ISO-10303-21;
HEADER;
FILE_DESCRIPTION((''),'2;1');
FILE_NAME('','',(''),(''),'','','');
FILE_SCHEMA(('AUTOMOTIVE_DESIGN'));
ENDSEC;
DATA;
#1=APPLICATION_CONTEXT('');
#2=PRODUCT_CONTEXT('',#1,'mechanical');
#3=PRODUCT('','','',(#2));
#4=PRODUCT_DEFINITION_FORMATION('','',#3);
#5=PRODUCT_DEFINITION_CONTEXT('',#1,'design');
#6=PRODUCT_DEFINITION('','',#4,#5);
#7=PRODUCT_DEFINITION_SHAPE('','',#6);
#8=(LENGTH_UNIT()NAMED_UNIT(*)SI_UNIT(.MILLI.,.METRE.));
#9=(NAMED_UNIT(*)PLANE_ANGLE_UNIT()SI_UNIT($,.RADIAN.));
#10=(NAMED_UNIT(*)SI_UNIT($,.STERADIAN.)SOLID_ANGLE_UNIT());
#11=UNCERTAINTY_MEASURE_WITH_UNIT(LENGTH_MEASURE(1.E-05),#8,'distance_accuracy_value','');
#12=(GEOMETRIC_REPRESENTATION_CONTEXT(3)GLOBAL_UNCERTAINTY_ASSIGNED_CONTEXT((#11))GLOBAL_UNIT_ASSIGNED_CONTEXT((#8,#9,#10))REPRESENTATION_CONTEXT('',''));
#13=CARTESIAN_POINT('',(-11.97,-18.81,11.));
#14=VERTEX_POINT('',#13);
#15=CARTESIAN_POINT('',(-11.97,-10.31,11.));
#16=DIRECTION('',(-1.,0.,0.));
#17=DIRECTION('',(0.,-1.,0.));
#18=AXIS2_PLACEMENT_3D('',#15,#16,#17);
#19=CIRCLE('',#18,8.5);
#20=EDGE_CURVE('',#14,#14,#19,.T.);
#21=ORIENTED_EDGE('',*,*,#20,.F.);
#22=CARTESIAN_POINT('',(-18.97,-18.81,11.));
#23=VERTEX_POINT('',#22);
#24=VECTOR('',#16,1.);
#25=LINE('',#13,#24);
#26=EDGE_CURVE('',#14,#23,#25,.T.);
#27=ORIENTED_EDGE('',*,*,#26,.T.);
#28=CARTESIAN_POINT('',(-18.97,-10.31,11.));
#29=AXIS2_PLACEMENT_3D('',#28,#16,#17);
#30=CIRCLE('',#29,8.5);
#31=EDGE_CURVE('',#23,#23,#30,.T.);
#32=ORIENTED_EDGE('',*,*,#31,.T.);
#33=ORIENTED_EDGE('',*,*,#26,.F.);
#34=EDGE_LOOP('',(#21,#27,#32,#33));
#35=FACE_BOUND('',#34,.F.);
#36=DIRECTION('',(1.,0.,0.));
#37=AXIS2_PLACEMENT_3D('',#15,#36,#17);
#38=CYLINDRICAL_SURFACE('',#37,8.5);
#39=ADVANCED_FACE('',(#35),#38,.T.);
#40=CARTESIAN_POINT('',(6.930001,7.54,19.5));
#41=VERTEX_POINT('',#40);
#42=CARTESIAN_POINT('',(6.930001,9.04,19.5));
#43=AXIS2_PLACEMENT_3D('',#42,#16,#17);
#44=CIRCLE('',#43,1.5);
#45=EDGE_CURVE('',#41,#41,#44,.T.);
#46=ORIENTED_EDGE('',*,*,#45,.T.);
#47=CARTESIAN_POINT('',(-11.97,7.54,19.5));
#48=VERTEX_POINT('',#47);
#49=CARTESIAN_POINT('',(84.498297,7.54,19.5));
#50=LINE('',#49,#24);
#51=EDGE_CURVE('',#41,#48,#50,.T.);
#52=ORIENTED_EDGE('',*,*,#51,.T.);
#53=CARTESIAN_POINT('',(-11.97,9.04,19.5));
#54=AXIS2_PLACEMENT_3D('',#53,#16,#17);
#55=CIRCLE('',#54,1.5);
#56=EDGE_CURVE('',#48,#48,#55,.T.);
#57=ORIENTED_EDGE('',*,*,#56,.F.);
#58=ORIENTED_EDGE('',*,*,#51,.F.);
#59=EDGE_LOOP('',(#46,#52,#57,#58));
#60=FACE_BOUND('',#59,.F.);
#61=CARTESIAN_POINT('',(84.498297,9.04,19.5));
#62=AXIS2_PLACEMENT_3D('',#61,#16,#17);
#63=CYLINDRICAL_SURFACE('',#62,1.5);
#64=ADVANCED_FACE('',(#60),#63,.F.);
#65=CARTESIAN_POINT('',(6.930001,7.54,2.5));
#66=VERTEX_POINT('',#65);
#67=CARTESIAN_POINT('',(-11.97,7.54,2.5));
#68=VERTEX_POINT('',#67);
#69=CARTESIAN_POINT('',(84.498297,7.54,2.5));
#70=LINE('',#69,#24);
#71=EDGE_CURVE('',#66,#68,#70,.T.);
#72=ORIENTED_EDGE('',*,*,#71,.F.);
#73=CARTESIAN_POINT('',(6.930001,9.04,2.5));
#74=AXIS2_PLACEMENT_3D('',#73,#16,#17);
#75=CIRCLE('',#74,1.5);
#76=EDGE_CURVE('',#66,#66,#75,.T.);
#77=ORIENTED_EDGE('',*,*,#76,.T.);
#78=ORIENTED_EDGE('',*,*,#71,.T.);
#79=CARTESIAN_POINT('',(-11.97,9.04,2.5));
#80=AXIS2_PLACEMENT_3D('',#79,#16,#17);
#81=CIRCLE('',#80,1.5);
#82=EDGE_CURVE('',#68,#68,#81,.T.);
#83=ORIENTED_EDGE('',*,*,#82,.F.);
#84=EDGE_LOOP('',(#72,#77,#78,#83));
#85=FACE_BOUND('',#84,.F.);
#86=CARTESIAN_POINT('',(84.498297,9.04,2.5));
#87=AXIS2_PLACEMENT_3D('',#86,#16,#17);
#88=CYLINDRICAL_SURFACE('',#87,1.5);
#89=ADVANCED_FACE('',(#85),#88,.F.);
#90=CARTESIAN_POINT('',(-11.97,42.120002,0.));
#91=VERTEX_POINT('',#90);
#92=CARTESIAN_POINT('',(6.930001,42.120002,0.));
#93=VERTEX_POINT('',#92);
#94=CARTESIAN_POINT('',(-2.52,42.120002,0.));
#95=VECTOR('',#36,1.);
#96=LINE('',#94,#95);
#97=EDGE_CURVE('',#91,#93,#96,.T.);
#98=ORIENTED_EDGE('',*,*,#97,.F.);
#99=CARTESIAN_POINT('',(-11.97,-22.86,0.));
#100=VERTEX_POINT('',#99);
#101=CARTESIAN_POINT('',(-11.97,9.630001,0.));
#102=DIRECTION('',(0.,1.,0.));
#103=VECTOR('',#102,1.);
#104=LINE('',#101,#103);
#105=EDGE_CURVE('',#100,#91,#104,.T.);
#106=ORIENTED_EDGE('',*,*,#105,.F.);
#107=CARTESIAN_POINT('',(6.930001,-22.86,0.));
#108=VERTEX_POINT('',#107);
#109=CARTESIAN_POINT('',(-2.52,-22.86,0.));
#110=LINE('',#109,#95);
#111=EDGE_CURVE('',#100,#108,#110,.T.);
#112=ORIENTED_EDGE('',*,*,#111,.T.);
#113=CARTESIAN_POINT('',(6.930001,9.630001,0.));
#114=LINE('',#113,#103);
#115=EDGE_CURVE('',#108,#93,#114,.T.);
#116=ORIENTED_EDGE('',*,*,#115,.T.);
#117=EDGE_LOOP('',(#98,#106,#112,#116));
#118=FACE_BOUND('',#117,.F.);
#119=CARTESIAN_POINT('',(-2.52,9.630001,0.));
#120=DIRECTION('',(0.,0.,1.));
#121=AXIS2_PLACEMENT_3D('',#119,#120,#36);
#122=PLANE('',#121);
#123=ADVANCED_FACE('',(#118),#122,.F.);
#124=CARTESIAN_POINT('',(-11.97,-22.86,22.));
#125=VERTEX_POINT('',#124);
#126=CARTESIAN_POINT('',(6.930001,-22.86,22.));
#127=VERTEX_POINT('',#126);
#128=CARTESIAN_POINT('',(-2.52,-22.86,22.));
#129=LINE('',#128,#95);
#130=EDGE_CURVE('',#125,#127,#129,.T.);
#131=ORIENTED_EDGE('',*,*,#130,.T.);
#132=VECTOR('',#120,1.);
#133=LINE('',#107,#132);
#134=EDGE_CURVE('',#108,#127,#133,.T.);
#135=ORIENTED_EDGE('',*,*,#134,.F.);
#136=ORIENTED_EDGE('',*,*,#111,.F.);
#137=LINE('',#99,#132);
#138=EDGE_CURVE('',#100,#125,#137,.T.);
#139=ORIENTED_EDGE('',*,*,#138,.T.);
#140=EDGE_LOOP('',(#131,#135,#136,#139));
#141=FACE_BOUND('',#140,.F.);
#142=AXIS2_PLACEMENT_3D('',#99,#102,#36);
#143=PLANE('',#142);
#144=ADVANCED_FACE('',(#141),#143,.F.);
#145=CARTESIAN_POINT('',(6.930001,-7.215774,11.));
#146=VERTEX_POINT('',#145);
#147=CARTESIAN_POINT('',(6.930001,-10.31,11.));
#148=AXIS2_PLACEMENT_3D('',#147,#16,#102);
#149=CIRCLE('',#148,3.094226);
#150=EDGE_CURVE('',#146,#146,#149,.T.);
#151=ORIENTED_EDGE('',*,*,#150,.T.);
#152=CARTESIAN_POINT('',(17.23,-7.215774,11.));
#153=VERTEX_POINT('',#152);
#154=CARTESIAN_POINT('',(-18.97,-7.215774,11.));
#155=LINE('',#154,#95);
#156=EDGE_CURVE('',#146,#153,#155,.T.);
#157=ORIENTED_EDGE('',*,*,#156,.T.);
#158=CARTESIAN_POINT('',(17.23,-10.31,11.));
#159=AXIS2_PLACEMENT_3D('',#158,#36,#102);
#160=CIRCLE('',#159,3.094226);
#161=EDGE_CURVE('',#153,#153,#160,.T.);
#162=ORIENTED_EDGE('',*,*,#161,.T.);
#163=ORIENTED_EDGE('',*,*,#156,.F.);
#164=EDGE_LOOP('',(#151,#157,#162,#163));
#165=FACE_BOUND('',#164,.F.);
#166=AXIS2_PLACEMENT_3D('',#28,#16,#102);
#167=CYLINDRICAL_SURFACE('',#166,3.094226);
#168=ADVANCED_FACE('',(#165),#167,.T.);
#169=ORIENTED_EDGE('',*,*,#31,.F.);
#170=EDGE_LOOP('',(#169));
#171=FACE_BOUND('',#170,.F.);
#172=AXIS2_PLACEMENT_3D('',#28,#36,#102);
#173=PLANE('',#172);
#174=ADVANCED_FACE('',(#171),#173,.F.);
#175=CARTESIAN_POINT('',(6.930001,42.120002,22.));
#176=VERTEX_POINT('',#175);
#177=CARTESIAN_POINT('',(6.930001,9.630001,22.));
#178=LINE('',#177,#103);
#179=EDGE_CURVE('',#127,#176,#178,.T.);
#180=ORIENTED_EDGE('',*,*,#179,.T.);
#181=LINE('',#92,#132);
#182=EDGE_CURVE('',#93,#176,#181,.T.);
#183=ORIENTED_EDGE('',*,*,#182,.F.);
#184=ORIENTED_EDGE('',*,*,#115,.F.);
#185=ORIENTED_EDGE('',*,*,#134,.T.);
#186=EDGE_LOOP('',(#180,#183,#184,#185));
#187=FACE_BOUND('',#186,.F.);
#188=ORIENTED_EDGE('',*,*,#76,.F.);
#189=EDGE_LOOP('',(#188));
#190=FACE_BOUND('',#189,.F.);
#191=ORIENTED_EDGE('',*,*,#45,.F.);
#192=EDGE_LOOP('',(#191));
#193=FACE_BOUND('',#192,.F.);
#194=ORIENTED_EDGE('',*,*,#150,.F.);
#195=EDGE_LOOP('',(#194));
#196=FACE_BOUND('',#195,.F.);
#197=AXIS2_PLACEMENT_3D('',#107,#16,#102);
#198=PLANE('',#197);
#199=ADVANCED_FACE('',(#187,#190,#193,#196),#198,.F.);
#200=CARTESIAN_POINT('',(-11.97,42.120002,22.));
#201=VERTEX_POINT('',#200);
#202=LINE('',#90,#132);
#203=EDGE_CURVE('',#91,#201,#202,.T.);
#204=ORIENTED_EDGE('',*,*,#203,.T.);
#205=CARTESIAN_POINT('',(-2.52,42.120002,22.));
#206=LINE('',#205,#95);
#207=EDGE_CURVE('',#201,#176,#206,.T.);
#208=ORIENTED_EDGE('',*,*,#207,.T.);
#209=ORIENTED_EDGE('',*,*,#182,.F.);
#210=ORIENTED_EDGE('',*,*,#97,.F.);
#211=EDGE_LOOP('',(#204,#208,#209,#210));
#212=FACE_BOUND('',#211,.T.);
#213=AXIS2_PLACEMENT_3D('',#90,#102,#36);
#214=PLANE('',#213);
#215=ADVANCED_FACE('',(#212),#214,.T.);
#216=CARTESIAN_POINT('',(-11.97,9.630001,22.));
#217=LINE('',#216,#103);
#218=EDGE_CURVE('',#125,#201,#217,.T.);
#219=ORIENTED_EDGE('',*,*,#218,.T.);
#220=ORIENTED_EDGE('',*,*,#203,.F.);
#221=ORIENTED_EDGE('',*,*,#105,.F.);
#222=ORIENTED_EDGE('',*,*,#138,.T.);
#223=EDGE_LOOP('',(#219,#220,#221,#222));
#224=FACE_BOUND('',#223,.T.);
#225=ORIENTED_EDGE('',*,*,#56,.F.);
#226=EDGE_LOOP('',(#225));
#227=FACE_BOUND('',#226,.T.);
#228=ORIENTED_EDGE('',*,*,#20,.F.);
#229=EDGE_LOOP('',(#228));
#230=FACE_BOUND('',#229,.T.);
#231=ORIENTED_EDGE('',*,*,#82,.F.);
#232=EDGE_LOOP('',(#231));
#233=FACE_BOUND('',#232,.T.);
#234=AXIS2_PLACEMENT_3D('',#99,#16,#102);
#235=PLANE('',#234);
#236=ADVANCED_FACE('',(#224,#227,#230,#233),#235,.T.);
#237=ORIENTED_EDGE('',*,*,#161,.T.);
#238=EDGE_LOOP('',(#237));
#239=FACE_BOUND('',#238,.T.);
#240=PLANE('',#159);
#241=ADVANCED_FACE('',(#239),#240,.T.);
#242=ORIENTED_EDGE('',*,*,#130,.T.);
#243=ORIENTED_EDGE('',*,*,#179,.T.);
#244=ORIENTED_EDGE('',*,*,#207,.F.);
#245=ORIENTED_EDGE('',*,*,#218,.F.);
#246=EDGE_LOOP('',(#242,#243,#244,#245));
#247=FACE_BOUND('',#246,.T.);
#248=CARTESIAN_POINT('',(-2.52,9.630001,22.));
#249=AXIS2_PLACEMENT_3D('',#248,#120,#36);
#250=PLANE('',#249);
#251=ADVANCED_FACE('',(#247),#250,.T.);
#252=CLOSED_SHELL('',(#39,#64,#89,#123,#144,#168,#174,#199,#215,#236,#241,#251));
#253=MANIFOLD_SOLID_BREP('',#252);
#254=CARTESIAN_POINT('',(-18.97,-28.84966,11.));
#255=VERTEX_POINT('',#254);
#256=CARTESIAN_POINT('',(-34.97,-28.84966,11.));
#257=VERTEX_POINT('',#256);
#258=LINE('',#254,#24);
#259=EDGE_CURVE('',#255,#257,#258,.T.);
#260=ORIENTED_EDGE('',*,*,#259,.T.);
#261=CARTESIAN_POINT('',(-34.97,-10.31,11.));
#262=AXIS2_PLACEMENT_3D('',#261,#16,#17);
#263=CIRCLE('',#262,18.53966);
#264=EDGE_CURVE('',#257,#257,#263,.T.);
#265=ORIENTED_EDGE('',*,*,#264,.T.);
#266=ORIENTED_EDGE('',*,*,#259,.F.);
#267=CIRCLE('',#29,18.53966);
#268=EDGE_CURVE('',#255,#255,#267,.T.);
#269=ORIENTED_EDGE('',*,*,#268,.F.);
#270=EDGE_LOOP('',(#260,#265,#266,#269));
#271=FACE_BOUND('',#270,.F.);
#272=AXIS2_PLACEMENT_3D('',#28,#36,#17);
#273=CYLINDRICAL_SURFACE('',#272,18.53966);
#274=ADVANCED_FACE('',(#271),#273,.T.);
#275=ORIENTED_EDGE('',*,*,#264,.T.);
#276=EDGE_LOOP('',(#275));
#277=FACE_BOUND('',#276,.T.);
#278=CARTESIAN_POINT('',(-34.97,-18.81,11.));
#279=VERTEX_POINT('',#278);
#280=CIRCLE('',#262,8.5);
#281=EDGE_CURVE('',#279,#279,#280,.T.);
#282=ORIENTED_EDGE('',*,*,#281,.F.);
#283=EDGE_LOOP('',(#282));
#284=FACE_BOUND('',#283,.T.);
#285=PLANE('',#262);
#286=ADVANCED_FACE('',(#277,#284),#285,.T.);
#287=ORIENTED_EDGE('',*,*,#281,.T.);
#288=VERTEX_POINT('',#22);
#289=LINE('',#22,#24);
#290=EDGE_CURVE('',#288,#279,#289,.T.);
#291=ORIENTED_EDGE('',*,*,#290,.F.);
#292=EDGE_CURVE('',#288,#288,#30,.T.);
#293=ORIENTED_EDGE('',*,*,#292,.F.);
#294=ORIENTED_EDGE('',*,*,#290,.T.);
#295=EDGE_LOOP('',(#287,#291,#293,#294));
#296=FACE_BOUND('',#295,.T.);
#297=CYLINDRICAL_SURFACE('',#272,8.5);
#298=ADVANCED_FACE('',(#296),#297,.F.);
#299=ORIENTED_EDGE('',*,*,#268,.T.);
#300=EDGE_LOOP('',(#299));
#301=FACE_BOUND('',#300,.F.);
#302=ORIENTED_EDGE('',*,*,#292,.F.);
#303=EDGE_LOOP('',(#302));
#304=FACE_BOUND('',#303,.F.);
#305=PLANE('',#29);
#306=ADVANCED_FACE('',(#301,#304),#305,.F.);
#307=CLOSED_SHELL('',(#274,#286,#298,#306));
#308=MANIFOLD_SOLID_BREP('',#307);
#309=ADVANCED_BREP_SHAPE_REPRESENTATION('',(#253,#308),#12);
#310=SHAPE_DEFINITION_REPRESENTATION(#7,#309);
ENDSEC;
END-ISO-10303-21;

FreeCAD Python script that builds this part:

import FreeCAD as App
import Part
import Sketcher
from FreeCAD import Vector
Q = App.Units.Quantity


def add_polygon(sketch, points):
    """Adds a closed chain of lines whose ends are joined by coincident constraints."""
    first, n = sketch.GeometryCount, len(points)
    for a, b in zip(points, points[1:] + points[:1]):
        sketch.addGeometry(Part.LineSegment(App.Vector(*a, 0), App.Vector(*b, 0)), False)
    for i in range(n):
        sketch.addConstraint(Sketcher.Constraint("Coincident", first + i, 2, first + (i + 1) % n, 1))

doc = App.newDocument("Part")
body = doc.addObject("PartDesign::Body", "Body")

# Sketch on XY plane
sketch1 = doc.addObject("Sketcher::SketchObject", "Sketch")
body.addObject(sketch1)
sketch1.AttachmentSupport = (doc.XY_Plane, [""])
sketch1.MapMode = "FlatFace"
add_polygon(sketch1, [(-12, 42), (-12, -23), (7, -23), (7, 42)])  # lines 0-3
sketch1.addConstraint([
    Sketcher.Constraint("Vertical", 0),
    Sketcher.Constraint("Horizontal", 1),
    Sketcher.Constraint("Vertical", 2),
    Sketcher.Constraint("Horizontal", 3),
    Sketcher.Constraint("DistanceX", 1, 1, 1, 2, Q("18.900001 mm")),
    Sketcher.Constraint("DistanceX", 0, 2, -1, 1, Q("11.97 mm")),
    Sketcher.Constraint("DistanceY", 0, 2, -1, 1, Q("22.86 mm")),
    Sketcher.Constraint("DistanceY", 0, 2, 0, 1, Q("64.980002 mm")),
])
pad1 = doc.addObject("PartDesign::Pad", "Pad")
body.addObject(pad1)
pad1.Profile = sketch1
pad1.Length = 22

# Sketch on YZ plane
sketch2 = doc.addObject("Sketcher::SketchObject", "Sketch001")
body.addObject(sketch2)
sketch2.AttachmentSupport = (doc.YZ_Plane, [""])
sketch2.MapMode = "FlatFace"
sketch2.AttachmentOffset = App.Placement(Vector(0, 0, -11.97), App.Rotation())
sketch2.addGeometry(Part.Circle(Vector(-10, 11, 0), Vector(0, 0, 1), 8), False)
sketch2.addConstraint([
    Sketcher.Constraint("Diameter", 0, Q("17 mm")),
    Sketcher.Constraint("DistanceY", -1, 1, 0, 3, Q("11 mm")),
    Sketcher.Constraint("DistanceX", 0, 3, -1, 1, Q("10.31 mm")),
])
pad2 = doc.addObject("PartDesign::Pad", "Pad001")
body.addObject(pad2)
pad2.Profile = sketch2
pad2.Length = 7
pad2.Reversed = True

# Sketch on YZ plane
sketch3 = doc.addObject("Sketcher::SketchObject", "Sketch002")
body.addObject(sketch3)
sketch3.AttachmentSupport = (doc.YZ_Plane, [""])
sketch3.MapMode = "FlatFace"
sketch3.AttachmentOffset = App.Placement(Vector(0, 0, -18.97), App.Rotation())
sketch3.addGeometry(Part.Circle(Vector(-10.3, 11, 0), Vector(0, 0, 1), 3.1), False)
sketch3.addConstraint([
    Sketcher.Constraint("DistanceY", -1, 1, 0, 3, Q("11 mm")),
    Sketcher.Constraint("Diameter", 0, Q("6.188452 mm")),
    Sketcher.Constraint("DistanceX", 0, 3, -1, 1, Q("10.31 mm")),
])
pad3 = doc.addObject("PartDesign::Pad", "Pad002")
body.addObject(pad3)
pad3.Profile = sketch3
pad3.Length = 36.2

# Sketch on YZ plane
sketch4 = doc.addObject("Sketcher::SketchObject", "Sketch003")
body.addObject(sketch4)
sketch4.AttachmentSupport = (doc.YZ_Plane, [""])
sketch4.MapMode = "FlatFace"
sketch4.AttachmentOffset = App.Placement(Vector(0, 0, 6.930001), App.Rotation())
sketch4.addGeometry([
    Part.Circle(Vector(9, 2.5, 0), Vector(0, 0, 1), 1.5),
    Part.Circle(Vector(9, 19.5, 0), Vector(0, 0, 1), 1.5),
], False)
sketch4.addConstraint([
    Sketcher.Constraint("Equal", 0, 1),
    Sketcher.Constraint("Vertical", 0, 3, 1, 3),
    Sketcher.Constraint("Diameter", 0, Q("3 mm")),
    Sketcher.Constraint("DistanceY", 0, 3, 1, 3, Q("17 mm")),
    Sketcher.Constraint("DistanceY", -1, 1, 0, 3, Q("2.5 mm")),
    Sketcher.Constraint("DistanceX", -1, 1, 0, 3, Q("9.04 mm")),
])
doc.recompute()
hole = doc.addObject("PartDesign::Hole", "Hole")
body.addObject(hole)
hole.Profile = sketch4
hole.ThreadType = "None"
hole.Diameter = 3
hole.DepthType = "ThroughAll"
body2 = doc.addObject("PartDesign::Body", "Body001")

# Sketch on YZ plane
sketch5 = doc.addObject("Sketcher::SketchObject", "Sketch004")
body2.addObject(sketch5)
sketch5.AttachmentSupport = (doc.getObject("YZ_Plane001"), [""])
sketch5.MapMode = "FlatFace"
sketch5.AttachmentOffset = App.Placement(Vector(0, 0, -18.97), App.Rotation())
sketch5.addGeometry([
    Part.Circle(Vector(-10, 11, 0), Vector(0, 0, 1), 19),
    Part.Circle(Vector(-10, 11, 0), Vector(0, 0, 1), 8),
], False)
sketch5.addConstraint([
    Sketcher.Constraint("Coincident", 1, 3, 0, 3),
    Sketcher.Constraint("Diameter", 1, Q("17 mm")),
    Sketcher.Constraint("DistanceY", -1, 1, 0, 3, Q("11 mm")),
    Sketcher.Constraint("Diameter", 0, Q("37.07932 mm")),
    Sketcher.Constraint("DistanceX", 0, 3, -1, 1, Q("10.31 mm")),
])
pad4 = doc.addObject("PartDesign::Pad", "Pad003")
body2.addObject(pad4)
pad4.Profile = sketch5
pad4.Length = 16
pad4.Reversed = True

doc.recompute()
